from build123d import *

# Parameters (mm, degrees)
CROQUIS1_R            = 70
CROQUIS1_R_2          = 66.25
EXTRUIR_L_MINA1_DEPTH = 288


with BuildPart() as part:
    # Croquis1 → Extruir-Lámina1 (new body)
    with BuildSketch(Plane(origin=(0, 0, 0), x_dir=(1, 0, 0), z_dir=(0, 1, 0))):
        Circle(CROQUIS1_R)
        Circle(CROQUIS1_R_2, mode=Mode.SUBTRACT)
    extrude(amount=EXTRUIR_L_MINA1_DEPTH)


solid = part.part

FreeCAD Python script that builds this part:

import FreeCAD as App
import Part
import Sketcher
from FreeCAD import Vector

doc = App.newDocument("Part")
body = doc.addObject("PartDesign::Body", "Body")

# Sketch on XZ plane
sketch1 = doc.addObject("Sketcher::SketchObject", "Sketch")
body.addObject(sketch1)
sketch1.AttachmentSupport = (doc.XZ_Plane, [""])
sketch1.MapMode = "FlatFace"
sketch1.addGeometry([
    Part.Circle(Vector(0, 0, 0), Vector(0, 0, 1), 70),
    Part.Circle(Vector(0, 0, 0), Vector(0, 0, 1), 66),
], False)
sketch1.addConstraint([
    Sketcher.Constraint("Coincident", 0, 3, -1, 1),
    Sketcher.Constraint("Coincident", 1, 3, -1, 1),
    Sketcher.Constraint("Diameter", 0, 140.0),
    Sketcher.Constraint("Diameter", 1, 132.5),
])
pad1 = doc.addObject("PartDesign::Pad", "Pad")
body.addObject(pad1)
pad1.Profile = sketch1
pad1.Length = 288
pad1.Reversed = True

doc.recompute()
